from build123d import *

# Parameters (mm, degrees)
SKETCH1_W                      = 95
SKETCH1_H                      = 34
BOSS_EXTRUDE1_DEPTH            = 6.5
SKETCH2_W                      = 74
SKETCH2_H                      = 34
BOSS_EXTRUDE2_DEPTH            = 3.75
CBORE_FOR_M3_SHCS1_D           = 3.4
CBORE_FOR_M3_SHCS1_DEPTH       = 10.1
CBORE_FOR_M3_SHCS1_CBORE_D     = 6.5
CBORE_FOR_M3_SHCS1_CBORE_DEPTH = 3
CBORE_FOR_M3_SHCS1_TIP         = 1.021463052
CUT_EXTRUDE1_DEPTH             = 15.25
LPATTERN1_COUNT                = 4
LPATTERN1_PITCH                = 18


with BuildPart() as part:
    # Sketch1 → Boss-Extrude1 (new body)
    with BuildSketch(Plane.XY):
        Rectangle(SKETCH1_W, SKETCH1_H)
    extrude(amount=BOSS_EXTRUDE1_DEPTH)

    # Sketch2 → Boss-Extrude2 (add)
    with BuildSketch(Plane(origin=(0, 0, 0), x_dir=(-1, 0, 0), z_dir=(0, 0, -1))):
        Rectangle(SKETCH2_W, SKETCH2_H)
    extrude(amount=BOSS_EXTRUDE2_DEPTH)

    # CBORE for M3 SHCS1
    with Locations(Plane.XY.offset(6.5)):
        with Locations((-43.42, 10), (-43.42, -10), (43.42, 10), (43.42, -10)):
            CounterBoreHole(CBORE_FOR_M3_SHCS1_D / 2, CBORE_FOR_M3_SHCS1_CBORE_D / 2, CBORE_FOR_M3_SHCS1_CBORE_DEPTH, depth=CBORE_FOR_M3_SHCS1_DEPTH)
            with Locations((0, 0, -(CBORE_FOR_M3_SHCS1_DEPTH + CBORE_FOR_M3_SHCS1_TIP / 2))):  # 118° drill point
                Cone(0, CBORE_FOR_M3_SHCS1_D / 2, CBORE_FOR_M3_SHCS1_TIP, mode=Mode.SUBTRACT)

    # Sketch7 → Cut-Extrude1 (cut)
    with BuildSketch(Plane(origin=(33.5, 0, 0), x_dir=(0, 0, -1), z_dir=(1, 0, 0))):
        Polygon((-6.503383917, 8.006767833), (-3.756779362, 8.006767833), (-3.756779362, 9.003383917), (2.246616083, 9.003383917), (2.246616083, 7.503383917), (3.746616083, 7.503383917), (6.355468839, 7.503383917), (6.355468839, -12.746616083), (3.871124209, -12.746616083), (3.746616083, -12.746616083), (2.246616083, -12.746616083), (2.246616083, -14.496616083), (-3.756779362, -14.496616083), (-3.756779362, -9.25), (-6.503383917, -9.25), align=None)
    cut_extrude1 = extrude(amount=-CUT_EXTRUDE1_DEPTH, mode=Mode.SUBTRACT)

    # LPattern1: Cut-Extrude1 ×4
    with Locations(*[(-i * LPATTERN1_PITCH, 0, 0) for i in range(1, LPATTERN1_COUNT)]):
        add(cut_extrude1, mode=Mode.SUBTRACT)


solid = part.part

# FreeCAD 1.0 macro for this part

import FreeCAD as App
import Part
import Sketcher
from FreeCAD import Vector
Q = App.Units.Quantity

doc = App.newDocument("Part")
body = doc.addObject("PartDesign::Body", "Body")

# Sketch on XY plane
sketch1 = body.newObject("Sketcher::SketchObject", "Sketch")
sketch1.AttachmentSupport = (doc.getObject("XY_Plane"), [""])
sketch1.MapMode = "FlatFace"
sketch1.addGeometry(Part.LineSegment(Vector(-48, 17, 0), Vector(-48, -17, 0)), False)
sketch1.addGeometry(Part.LineSegment(Vector(-48, -17, 0), Vector(48, -17, 0)), False)
sketch1.addGeometry(Part.LineSegment(Vector(48, -17, 0), Vector(48, 17, 0)), False)
sketch1.addGeometry(Part.LineSegment(Vector(48, 17, 0), Vector(-48, 17, 0)), False)
sketch1.addConstraint(Sketcher.Constraint("Coincident", 0, 2, 1, 1))
sketch1.addConstraint(Sketcher.Constraint("Coincident", 1, 2, 2, 1))
sketch1.addConstraint(Sketcher.Constraint("Coincident", 2, 2, 3, 1))
sketch1.addConstraint(Sketcher.Constraint("Coincident", 3, 2, 0, 1))
sketch1.addConstraint(Sketcher.Constraint("Vertical", 0))
sketch1.addConstraint(Sketcher.Constraint("Horizontal", 1))
sketch1.addConstraint(Sketcher.Constraint("Vertical", 2))
sketch1.addConstraint(Sketcher.Constraint("Horizontal", 3))
sketch1.addConstraint(Sketcher.Constraint("Symmetric", 0, 2, 2, 2, -1, 1))
sketch1.addConstraint(Sketcher.Constraint("DistanceX", 1, 1, 1, 2, Q("95 mm")))
sketch1.addConstraint(Sketcher.Constraint("DistanceY", 0, 2, 0, 1, Q("34 mm")))
pad1 = body.newObject("PartDesign::Pad", "Pad")
pad1.Profile = sketch1
pad1.Length = 6.5

# Sketch on XY plane
sketch2 = body.newObject("Sketcher::SketchObject", "Sketch001")
sketch2.AttachmentSupport = (doc.getObject("XY_Plane"), [""])
sketch2.MapMode = "FlatFace"
sketch2.addGeometry(Part.LineSegment(Vector(37, 17, 0), Vector(37, -17, 0)), False)
sketch2.addGeometry(Part.LineSegment(Vector(37, -17, 0), Vector(-37, -17, 0)), False)
sketch2.addGeometry(Part.LineSegment(Vector(-37, -17, 0), Vector(-37, 17, 0)), False)
sketch2.addGeometry(Part.LineSegment(Vector(-37, 17, 0), Vector(37, 17, 0)), False)
sketch2.addConstraint(Sketcher.Constraint("Coincident", 0, 2, 1, 1))
sketch2.addConstraint(Sketcher.Constraint("Coincident", 1, 2, 2, 1))
sketch2.addConstraint(Sketcher.Constraint("Coincident", 2, 2, 3, 1))
sketch2.addConstraint(Sketcher.Constraint("Coincident", 3, 2, 0, 1))
sketch2.addConstraint(Sketcher.Constraint("Vertical", 0))
sketch2.addConstraint(Sketcher.Constraint("Horizontal", 1))
sketch2.addConstraint(Sketcher.Constraint("Vertical", 2))
sketch2.addConstraint(Sketcher.Constraint("Horizontal", 3))
sketch2.addConstraint(Sketcher.Constraint("Symmetric", 0, 2, 2, 2, -1, 1))
sketch2.addConstraint(Sketcher.Constraint("DistanceX", 1, 2, 1, 1, Q("74 mm")))
sketch2.addConstraint(Sketcher.Constraint("DistanceY", 0, 2, 0, 1, Q("34 mm")))
pad2 = body.newObject("PartDesign::Pad", "Pad001")
pad2.Profile = sketch2
pad2.Length = 3.75
pad2.Reversed = True

# Sketch on XY plane
sketch3 = body.newObject("Sketcher::SketchObject", "Sketch002")
sketch3.AttachmentSupport = (doc.getObject("XY_Plane"), [""])
sketch3.MapMode = "FlatFace"
sketch3.AttachmentOffset = App.Placement(Vector(0, 0, 6.5), App.Rotation())
sketch3.addGeometry(Part.Circle(Vector(-43.4, 10, 0), Vector(0, 0, 1), 1.7), False)
sketch3.addGeometry(Part.Circle(Vector(-43.4, -10, 0), Vector(0, 0, 1), 1.7), False)
sketch3.addGeometry(Part.Circle(Vector(43.4, 10, 0), Vector(0, 0, 1), 1.7), False)
sketch3.addGeometry(Part.Circle(Vector(43.4, -10, 0), Vector(0, 0, 1), 1.7), False)
sketch3.addConstraint(Sketcher.Constraint("Equal", 0, 1))
sketch3.addConstraint(Sketcher.Constraint("Equal", 1, 2))
sketch3.addConstraint(Sketcher.Constraint("Equal", 2, 3))
sketch3.addConstraint(Sketcher.Constraint("Symmetric", 1, 3, 2, 3, -1, 1))
sketch3.addConstraint(Sketcher.Constraint("Symmetric", 0, 3, 3, 3, -1, 1))
sketch3.addConstraint(Sketcher.Constraint("Symmetric", 0, 3, 2, 3, -2))
sketch3.addConstraint(Sketcher.Constraint("Diameter", 0, Q("3.4 mm")))
sketch3.addConstraint(Sketcher.Constraint("DistanceY", -1, 1, 0, 3, Q("10 mm")))
sketch3.addConstraint(Sketcher.Constraint("DistanceX", 0, 3, -1, 1, Q("43.42 mm")))
doc.recompute()
hole = body.newObject("PartDesign::Hole", "Hole")
hole.Profile = sketch3
hole.ThreadType = "None"
hole.Diameter = 3.4
hole.DepthType = "Dimension"
hole.Depth = 10.1
hole.DrillPoint = "Angled"
hole.DrillPointAngle = 118
hole.HoleCutType = "Counterbore"
hole.HoleCutDiameter = 6.5
hole.HoleCutDepth = 3

# Sketch on YZ plane
sketch4 = body.newObject("Sketcher::SketchObject", "Sketch003")
sketch4.AttachmentSupport = (doc.getObject("YZ_Plane"), [""])
sketch4.MapMode = "FlatFace"
sketch4.AttachmentOffset = App.Placement(Vector(0, 0, 33.5), App.Rotation())
sketch4.addGeometry(Part.LineSegment(Vector(8, 3.8, 0), Vector(8, 6.5, 0)), False)
sketch4.addGeometry(Part.LineSegment(Vector(8, 6.5, 0), Vector(-9.2, 6.5, 0)), False)
sketch4.addGeometry(Part.LineSegment(Vector(-9.2, 6.5, 0), Vector(-9.2, 3.8, 0)), False)
sketch4.addGeometry(Part.LineSegment(Vector(-9.2, 3.8, 0), Vector(-14.5, 3.8, 0)), False)
sketch4.addGeometry(Part.LineSegment(Vector(-14.5, 3.8, 0), Vector(-14.5, -2.2, 0)), False)
sketch4.addGeometry(Part.LineSegment(Vector(-14.5, -2.2, 0), Vector(-12.7, -2.2, 0)), False)
sketch4.addGeometry(Part.LineSegment(Vector(-12.7, -2.2, 0), Vector(-12.7, -6.4, 0)), False)
sketch4.addGeometry(Part.LineSegment(Vector(-12.7, -6.4, 0), Vector(7.5, -6.4, 0)), False)
sketch4.addGeometry(Part.LineSegment(Vector(7.5, -6.4, 0), Vector(7.5, -2.2, 0)), False)
sketch4.addGeometry(Part.LineSegment(Vector(7.5, -2.2, 0), Vector(9, -2.2, 0)), False)
sketch4.addGeometry(Part.LineSegment(Vector(9, -2.2, 0), Vector(9, 3.8, 0)), False)
sketch4.addGeometry(Part.LineSegment(Vector(9, 3.8, 0), Vector(8, 3.8, 0)), False)
sketch4.addConstraint(Sketcher.Constraint("Coincident", 0, 2, 1, 1))
sketch4.addConstraint(Sketcher.Constraint("Coincident", 1, 2, 2, 1))
sketch4.addConstraint(Sketcher.Constraint("Coincident", 2, 2, 3, 1))
sketch4.addConstraint(Sketcher.Constraint("Coincident", 3, 2, 4, 1))
sketch4.addConstraint(Sketcher.Constraint("Coincident", 4, 2, 5, 1))
sketch4.addConstraint(Sketcher.Constraint("Coincident", 5, 2, 6, 1))
sketch4.addConstraint(Sketcher.Constraint("Coincident", 6, 2, 7, 1))
sketch4.addConstraint(Sketcher.Constraint("Coincident", 7, 2, 8, 1))
sketch4.addConstraint(Sketcher.Constraint("Coincident", 8, 2, 9, 1))
sketch4.addConstraint(Sketcher.Constraint("Coincident", 9, 2, 10, 1))
sketch4.addConstraint(Sketcher.Constraint("Coincident", 10, 2, 11, 1))
sketch4.addConstraint(Sketcher.Constraint("Coincident", 11, 2, 0, 1))
sketch4.addConstraint(Sketcher.Constraint("Vertical", 0))
sketch4.addConstraint(Sketcher.Constraint("Horizontal", 1))
sketch4.addConstraint(Sketcher.Constraint("Vertical", 2))
sketch4.addConstraint(Sketcher.Constraint("Horizontal", 3))
sketch4.addConstraint(Sketcher.Constraint("Vertical", 4))
sketch4.addConstraint(Sketcher.Constraint("Horizontal", 5))
sketch4.addConstraint(Sketcher.Constraint("Vertical", 6))
sketch4.addConstraint(Sketcher.Constraint("Horizontal", 7))
sketch4.addConstraint(Sketcher.Constraint("Vertical", 8))
sketch4.addConstraint(Sketcher.Constraint("Horizontal", 9))
sketch4.addConstraint(Sketcher.Constraint("Vertical", 10))
sketch4.addConstraint(Sketcher.Constraint("Horizontal", 11))
sketch4.addConstraint(Sketcher.Constraint("Horizontal", 5, 2, 8, 2))
sketch4.addConstraint(Sketcher.Constraint("Horizontal", 3, 2, 10, 2))
sketch4.addConstraint(Sketcher.Constraint("DistanceX", 9, 1, 9, 2, Q("1.5 mm")))
sketch4.addConstraint(Sketcher.Constraint("DistanceX", 5, 1, 5, 2, Q("1.75 mm")))
sketch4.addConstraint(Sketcher.Constraint("DistanceX", 7, 1, 7, 2, Q("20.25 mm")))
sketch4.addConstraint(Sketcher.Constraint("DistanceX", 1, 2, -1, 1, Q("9.25 mm")))
sketch4.addConstraint(Sketcher.Constraint("DistanceY", 4, 2, 1, 2, Q("8.75 mm")))
sketch4.addConstraint(Sketcher.Constraint("DistanceX", 1, 2, 1, 1, Q("17.256768 mm")))
sketch4.addConstraint(Sketcher.Constraint("DistanceX", 3, 2, 3, 1, Q("5.246616 mm")))
sketch4.addConstraint(Sketcher.Constraint("DistanceY", 0, 1, 0, 2, Q("2.746605 mm")))
sketch4.addConstraint(Sketcher.Constraint("DistanceY", 6, 2, 6, 1, Q("4.108853 mm")))
sketch4.addConstraint(Sketcher.Constraint("DistanceY", -1, 1, 2, 2, Q("3.756779 mm")))
pocket1 = body.newObject("PartDesign::Pocket", "Pocket")
pocket1.Profile = sketch4
pocket1.Length = 15.25
doc.recompute()

linearpattern = body.newObject("PartDesign::LinearPattern", "LinearPattern")
linearpattern.Originals = [pocket1]
linearpattern.Direction = (doc.getObject("X_Axis"), [""])
linearpattern.Mode = "offset"
linearpattern.Offset = 18
linearpattern.Occurrences = 4
linearpattern.Reversed = True
body.Tip = linearpattern

doc.recompute()
